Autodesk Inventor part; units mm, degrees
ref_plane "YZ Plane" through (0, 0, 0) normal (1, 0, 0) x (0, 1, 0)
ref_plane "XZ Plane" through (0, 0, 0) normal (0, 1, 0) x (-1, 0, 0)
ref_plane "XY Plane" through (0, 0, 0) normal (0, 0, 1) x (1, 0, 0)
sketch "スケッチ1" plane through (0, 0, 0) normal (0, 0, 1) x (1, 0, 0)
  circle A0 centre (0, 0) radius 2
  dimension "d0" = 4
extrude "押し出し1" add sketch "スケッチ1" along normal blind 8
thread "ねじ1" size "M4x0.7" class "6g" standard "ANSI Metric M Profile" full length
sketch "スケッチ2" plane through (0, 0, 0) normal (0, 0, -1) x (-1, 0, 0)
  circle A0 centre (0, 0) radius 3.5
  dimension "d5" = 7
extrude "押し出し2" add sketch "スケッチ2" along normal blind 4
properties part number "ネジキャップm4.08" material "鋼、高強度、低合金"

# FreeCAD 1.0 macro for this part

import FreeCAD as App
import Part
import Sketcher
from FreeCAD import Vector

doc = App.newDocument("Part")
body = doc.addObject("PartDesign::Body", "Body")

# Sketch on XY plane
sketch1 = body.newObject("Sketcher::SketchObject", "Sketch")
sketch1.AttachmentSupport = (doc.getObject("XY_Plane"), [""])
sketch1.MapMode = "FlatFace"
sketch1.addGeometry(Part.Circle(Vector(0, 0, 0), Vector(0, 0, 1), 2), False)
sketch1.addConstraint(Sketcher.Constraint("Coincident", 0, 3, -1, 1))
sketch1.addConstraint(Sketcher.Constraint("Diameter", 0, 4.0))
pad1 = body.newObject("PartDesign::Pad", "Pad")
pad1.Profile = sketch1
pad1.Length = 8

# Sketch on XY plane
sketch2 = body.newObject("Sketcher::SketchObject", "Sketch001")
sketch2.AttachmentSupport = (doc.getObject("XY_Plane"), [""])
sketch2.MapMode = "FlatFace"
sketch2.addGeometry(Part.Circle(Vector(0, 0, 0), Vector(0, 0, 1), 3.5), False)
sketch2.addConstraint(Sketcher.Constraint("Coincident", 0, 3, -1, 1))
sketch2.addConstraint(Sketcher.Constraint("Diameter", 0, 7.0))
pad2 = body.newObject("PartDesign::Pad", "Pad001")
pad2.Profile = sketch2
pad2.Length = 4
pad2.Reversed = True

doc.recompute()
